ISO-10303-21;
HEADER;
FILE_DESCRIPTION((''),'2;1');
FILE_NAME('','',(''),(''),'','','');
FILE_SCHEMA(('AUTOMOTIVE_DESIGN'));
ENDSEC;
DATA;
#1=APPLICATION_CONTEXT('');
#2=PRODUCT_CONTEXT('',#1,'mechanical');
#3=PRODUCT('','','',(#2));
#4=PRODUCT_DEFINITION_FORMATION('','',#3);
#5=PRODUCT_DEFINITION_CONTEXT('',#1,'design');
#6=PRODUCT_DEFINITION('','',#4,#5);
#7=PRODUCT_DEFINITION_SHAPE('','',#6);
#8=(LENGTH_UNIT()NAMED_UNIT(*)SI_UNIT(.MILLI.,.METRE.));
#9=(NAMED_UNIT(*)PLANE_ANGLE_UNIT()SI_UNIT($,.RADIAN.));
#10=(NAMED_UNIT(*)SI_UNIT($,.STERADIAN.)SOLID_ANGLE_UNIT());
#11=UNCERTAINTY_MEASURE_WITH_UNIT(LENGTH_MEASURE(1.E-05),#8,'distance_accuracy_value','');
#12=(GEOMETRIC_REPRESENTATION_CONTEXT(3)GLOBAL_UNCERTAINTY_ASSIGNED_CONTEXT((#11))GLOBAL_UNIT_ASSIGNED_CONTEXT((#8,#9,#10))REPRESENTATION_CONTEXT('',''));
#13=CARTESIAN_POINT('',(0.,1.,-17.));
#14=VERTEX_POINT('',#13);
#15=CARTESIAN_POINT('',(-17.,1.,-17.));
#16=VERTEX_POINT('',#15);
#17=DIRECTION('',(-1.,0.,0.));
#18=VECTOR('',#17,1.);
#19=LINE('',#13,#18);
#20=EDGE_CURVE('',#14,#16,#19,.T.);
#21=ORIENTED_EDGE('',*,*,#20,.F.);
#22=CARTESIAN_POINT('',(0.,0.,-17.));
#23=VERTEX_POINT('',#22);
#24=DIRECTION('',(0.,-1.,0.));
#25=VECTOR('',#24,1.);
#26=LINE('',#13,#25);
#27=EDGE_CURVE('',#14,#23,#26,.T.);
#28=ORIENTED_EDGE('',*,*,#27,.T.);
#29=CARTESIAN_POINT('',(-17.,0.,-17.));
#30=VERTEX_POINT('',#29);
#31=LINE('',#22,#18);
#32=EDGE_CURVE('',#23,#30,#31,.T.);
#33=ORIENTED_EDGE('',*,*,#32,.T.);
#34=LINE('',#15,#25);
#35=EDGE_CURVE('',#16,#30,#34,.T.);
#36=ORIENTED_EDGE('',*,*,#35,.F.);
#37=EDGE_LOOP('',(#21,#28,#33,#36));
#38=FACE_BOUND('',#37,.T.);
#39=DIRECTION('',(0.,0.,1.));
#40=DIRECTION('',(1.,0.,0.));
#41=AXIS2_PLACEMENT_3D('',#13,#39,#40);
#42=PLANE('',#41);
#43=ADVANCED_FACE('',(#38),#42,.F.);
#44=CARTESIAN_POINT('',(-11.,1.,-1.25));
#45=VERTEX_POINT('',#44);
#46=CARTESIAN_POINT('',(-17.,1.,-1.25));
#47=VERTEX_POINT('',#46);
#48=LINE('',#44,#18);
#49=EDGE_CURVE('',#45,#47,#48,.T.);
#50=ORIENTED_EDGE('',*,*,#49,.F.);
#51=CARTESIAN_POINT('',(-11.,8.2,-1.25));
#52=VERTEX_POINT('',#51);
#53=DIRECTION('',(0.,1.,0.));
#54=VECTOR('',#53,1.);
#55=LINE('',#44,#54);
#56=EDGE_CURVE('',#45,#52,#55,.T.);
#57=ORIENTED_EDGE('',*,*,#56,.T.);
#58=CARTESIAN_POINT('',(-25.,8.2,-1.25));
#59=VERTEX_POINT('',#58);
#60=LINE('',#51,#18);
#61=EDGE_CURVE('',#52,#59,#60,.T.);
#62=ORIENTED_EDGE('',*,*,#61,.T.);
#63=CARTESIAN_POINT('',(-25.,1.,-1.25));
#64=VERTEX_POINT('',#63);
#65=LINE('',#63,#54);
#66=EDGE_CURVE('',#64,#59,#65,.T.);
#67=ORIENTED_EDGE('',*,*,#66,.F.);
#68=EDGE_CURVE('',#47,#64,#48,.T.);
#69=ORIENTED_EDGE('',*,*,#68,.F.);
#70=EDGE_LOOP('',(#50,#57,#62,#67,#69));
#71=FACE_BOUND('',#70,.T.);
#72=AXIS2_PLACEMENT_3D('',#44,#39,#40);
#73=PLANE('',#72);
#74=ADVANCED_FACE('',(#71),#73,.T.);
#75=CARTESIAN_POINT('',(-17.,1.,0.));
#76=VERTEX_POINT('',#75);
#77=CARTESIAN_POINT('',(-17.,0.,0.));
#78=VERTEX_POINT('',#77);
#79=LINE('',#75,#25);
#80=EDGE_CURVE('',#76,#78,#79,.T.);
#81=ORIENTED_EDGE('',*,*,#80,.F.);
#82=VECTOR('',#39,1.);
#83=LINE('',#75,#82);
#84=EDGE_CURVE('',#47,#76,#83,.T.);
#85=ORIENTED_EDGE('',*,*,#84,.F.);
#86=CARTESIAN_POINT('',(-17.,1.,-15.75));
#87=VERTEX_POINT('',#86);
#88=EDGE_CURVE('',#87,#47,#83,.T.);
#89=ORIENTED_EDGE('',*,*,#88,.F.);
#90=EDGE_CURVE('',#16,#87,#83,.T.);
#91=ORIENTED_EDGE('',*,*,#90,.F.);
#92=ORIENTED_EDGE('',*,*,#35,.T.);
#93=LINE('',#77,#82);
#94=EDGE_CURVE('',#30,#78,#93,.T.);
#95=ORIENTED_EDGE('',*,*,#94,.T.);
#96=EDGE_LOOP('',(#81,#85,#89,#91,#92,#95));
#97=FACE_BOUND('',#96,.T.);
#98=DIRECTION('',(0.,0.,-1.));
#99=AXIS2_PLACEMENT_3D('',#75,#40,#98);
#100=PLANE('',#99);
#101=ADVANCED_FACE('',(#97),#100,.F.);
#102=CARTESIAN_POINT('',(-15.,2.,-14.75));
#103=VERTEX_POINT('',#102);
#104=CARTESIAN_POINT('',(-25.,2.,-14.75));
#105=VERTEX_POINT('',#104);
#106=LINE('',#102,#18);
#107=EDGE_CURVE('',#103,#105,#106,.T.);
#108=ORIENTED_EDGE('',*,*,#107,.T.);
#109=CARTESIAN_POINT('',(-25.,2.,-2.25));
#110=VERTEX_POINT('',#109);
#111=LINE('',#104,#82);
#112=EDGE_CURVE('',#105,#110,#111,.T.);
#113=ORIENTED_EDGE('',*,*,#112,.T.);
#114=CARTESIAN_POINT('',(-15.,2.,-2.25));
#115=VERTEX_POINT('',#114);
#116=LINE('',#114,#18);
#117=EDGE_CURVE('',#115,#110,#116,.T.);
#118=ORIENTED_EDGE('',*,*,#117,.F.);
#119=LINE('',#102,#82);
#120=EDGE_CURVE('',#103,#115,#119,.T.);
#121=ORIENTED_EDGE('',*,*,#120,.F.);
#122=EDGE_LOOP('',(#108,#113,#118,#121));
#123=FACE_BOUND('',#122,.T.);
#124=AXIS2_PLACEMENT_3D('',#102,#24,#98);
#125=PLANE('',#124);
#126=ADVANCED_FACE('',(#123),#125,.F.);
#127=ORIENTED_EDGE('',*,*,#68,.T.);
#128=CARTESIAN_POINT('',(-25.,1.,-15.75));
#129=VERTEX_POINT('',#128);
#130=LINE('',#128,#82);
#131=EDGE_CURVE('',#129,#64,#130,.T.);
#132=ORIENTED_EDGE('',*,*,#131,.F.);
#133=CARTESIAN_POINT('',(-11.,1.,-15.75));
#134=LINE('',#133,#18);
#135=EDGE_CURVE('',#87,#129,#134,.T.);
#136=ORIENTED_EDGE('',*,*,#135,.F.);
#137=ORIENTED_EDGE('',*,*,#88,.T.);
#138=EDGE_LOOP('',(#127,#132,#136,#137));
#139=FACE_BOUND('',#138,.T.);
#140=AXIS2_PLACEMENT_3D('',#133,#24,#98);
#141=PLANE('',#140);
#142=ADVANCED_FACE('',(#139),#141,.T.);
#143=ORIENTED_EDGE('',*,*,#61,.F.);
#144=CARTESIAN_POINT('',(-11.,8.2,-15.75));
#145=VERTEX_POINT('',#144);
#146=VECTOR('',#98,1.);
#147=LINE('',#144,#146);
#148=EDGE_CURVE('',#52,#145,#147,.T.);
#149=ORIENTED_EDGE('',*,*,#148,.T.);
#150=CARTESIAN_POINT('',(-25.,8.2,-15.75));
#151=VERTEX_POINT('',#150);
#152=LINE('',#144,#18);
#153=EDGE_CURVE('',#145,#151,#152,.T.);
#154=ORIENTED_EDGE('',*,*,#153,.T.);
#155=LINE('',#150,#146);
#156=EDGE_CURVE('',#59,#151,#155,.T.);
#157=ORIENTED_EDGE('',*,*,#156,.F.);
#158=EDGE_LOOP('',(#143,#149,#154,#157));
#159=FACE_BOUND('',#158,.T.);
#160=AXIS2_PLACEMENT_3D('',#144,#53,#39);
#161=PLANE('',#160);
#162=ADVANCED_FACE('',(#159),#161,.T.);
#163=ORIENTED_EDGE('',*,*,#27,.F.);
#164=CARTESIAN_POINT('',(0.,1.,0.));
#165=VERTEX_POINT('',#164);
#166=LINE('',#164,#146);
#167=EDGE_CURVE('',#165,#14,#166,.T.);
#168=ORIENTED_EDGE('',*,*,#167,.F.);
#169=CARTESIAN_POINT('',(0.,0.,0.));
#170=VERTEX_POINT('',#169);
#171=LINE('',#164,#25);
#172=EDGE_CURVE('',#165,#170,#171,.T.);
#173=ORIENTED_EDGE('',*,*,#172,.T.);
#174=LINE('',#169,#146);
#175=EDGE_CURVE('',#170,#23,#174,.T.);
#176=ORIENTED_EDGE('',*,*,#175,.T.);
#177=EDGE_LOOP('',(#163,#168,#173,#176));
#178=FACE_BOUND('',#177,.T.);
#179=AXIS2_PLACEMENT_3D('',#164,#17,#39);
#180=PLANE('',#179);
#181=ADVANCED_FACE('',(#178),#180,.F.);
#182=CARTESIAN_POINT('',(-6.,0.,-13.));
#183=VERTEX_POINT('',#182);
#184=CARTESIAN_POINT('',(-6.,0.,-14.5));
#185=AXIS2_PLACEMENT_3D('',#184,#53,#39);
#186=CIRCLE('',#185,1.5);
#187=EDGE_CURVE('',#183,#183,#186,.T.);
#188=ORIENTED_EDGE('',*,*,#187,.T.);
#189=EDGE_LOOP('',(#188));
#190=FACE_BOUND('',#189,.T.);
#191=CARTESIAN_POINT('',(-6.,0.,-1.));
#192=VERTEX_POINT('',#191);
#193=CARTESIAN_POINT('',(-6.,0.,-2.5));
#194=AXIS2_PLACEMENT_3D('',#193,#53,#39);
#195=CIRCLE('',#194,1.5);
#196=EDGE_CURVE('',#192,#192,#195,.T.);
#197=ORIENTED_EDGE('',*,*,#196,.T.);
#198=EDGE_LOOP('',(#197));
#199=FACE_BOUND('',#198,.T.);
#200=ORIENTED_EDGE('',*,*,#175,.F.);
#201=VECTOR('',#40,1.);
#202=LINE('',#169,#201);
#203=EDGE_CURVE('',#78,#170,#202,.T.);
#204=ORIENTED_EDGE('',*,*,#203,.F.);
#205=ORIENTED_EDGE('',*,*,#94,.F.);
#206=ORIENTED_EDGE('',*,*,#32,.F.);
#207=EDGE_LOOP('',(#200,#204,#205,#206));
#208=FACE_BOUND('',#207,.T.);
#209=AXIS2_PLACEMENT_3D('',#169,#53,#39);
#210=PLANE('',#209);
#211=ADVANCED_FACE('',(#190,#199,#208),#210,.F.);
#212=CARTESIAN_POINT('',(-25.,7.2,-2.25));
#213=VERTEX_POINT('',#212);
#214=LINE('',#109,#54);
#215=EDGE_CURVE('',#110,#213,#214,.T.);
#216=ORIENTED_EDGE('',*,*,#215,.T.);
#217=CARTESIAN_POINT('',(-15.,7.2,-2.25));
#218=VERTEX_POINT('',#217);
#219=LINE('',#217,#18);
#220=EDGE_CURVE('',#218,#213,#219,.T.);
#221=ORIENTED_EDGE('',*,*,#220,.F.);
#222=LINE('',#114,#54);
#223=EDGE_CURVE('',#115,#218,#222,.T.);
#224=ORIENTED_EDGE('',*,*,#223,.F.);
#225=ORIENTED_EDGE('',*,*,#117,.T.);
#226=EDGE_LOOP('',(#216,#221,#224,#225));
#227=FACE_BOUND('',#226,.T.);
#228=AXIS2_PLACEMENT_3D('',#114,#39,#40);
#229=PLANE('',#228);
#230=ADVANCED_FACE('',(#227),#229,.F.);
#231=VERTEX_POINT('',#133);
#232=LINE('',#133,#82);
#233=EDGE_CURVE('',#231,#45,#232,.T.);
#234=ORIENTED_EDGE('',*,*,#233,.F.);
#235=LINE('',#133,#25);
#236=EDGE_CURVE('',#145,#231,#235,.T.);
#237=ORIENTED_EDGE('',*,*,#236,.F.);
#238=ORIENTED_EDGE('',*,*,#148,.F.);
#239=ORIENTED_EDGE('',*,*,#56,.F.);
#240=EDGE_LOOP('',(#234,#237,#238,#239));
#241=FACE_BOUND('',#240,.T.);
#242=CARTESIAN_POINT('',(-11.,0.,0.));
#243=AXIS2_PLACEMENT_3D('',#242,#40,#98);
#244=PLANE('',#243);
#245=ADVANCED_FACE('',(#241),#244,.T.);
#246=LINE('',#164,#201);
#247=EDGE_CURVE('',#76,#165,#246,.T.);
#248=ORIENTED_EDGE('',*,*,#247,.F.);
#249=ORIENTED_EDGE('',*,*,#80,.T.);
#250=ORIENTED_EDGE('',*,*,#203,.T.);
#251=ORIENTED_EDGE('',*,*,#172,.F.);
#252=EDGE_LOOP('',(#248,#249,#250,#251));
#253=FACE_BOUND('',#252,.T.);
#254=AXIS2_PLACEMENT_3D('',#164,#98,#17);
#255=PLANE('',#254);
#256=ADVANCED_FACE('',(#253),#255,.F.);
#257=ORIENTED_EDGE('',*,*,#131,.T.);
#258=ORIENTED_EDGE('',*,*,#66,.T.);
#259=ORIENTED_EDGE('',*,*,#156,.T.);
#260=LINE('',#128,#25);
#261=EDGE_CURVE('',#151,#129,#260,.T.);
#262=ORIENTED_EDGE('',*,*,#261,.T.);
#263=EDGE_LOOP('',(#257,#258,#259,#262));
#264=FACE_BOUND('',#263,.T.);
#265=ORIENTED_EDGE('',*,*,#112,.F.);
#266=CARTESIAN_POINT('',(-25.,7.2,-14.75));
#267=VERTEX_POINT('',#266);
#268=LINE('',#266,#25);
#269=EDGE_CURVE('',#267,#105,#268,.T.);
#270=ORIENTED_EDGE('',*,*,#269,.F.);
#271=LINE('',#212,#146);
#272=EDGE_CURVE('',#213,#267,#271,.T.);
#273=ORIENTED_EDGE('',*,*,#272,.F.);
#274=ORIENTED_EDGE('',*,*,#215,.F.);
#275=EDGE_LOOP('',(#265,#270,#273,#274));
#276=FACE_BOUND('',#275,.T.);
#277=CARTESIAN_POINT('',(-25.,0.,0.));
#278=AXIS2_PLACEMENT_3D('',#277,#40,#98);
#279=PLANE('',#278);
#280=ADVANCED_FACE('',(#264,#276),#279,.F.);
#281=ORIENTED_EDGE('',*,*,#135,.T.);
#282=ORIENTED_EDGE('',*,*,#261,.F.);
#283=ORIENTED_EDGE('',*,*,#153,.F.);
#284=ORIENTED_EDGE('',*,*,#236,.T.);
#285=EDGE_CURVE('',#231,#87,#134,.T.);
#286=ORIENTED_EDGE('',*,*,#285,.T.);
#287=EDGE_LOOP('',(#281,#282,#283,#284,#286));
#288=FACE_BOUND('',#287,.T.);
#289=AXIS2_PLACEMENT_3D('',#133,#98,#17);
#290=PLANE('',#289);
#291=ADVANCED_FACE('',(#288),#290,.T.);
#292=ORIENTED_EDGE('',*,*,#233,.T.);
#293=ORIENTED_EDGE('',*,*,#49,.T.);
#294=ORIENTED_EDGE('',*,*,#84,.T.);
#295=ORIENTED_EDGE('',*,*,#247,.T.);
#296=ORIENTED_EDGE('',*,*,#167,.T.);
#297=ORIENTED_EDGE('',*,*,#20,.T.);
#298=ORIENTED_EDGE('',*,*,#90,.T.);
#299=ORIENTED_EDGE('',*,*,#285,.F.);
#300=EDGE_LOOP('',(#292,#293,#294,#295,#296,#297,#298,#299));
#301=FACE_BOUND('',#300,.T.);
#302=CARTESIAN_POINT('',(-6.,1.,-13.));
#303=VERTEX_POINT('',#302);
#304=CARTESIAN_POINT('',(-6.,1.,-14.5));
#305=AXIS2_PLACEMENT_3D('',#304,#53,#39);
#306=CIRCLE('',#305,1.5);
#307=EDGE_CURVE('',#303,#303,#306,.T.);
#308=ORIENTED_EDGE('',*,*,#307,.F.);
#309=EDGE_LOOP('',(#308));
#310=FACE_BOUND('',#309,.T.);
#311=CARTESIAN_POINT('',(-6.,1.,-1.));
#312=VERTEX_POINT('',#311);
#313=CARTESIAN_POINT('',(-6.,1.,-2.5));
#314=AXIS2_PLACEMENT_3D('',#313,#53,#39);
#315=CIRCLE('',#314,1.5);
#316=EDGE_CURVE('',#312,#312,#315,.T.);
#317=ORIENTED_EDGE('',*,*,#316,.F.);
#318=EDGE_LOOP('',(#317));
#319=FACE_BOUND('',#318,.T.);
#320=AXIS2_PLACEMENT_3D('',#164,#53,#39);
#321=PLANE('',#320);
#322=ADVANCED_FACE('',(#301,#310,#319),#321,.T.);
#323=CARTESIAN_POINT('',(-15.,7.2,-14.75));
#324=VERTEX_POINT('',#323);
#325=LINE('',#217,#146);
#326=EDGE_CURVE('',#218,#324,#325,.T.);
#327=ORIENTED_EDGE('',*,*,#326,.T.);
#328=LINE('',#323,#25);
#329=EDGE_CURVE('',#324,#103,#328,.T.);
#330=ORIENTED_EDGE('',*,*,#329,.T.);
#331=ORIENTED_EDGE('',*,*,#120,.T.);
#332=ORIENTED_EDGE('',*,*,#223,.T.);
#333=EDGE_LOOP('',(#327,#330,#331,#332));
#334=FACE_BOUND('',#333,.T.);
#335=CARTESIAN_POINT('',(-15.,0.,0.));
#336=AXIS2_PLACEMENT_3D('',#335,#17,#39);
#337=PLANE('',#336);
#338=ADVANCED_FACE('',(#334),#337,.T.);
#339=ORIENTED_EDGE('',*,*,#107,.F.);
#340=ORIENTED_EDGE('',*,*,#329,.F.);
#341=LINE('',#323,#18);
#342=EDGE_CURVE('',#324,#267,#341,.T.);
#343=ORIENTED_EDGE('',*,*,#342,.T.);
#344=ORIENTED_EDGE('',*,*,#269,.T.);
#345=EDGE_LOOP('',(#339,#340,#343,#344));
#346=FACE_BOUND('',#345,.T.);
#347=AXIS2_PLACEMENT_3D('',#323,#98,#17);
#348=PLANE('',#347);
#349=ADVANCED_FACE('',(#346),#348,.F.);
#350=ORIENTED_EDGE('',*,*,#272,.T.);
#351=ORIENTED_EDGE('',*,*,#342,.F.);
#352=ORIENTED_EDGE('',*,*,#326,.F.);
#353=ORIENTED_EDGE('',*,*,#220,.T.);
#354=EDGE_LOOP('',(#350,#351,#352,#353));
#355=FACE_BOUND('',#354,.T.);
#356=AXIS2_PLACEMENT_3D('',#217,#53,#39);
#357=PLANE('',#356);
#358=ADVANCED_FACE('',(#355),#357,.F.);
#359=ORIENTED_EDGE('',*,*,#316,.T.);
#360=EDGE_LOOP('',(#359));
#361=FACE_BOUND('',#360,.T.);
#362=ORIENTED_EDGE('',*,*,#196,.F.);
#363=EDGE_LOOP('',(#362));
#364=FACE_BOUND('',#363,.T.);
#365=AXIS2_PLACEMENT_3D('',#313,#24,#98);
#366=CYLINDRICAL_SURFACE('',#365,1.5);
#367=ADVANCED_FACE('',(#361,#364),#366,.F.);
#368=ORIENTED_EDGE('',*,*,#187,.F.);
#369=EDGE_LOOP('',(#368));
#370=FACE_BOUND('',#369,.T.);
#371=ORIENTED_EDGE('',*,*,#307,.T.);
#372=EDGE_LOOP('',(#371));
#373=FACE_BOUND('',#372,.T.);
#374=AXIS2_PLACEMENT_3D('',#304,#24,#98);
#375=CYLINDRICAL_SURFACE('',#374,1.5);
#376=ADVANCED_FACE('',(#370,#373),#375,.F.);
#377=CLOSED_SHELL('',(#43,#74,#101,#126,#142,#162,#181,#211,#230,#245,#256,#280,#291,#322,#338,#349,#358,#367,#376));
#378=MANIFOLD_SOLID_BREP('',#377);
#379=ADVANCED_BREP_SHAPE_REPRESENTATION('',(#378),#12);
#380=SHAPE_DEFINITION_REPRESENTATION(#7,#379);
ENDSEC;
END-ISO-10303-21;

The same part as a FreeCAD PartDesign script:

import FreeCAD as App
import Part
import Sketcher
Q = App.Units.Quantity

doc = App.newDocument("Part")
body = doc.addObject("PartDesign::Body", "Body")

# Sketch on XZ plane
sketch1 = body.newObject("Sketcher::SketchObject", "Sketch")
sketch1.AttachmentSupport = (doc.getObject("XZ_Plane"), [""])
sketch1.MapMode = "FlatFace"
sketch1.addGeometry([
    Part.LineSegment(App.Vector(-17, -17, 0), App.Vector(-17, 0, 0)),  # 0
    Part.LineSegment(App.Vector(-17, 0, 0), App.Vector(0, 0, 0)),  # 1
    Part.LineSegment(App.Vector(0, 0, 0), App.Vector(0, -17, 0)),  # 2
    Part.LineSegment(App.Vector(0, -17, 0), App.Vector(-17, -17, 0)),  # 3
    Part.Circle(App.Vector(-6, -2.5, 0), App.Vector(0, 0, 1), 1.5),  # 4
    Part.Circle(App.Vector(-6, -14.5, 0), App.Vector(0, 0, 1), 1.5),  # 5
], False)
sketch1.addConstraint([
    Sketcher.Constraint("Coincident", 0, 2, 1, 1),
    Sketcher.Constraint("Coincident", 1, 2, 2, 1),
    Sketcher.Constraint("Coincident", 2, 2, 3, 1),
    Sketcher.Constraint("Coincident", 3, 2, 0, 1),
    Sketcher.Constraint("Vertical", 0),
    Sketcher.Constraint("Horizontal", 1),
    Sketcher.Constraint("Vertical", 2),
    Sketcher.Constraint("Horizontal", 3),
    Sketcher.Constraint("Coincident", 1, 2, -1, 1),
    Sketcher.Constraint("Equal", 4, 5),
    Sketcher.Constraint("Vertical", 4, 3, 5, 3),
    Sketcher.Constraint("Equal", 3, 0),
    Sketcher.Constraint("Diameter", 4, Q("3 mm")),
    Sketcher.Constraint("DistanceX", 1, 1, 1, 2, Q("17 mm")),
    Sketcher.Constraint("DistanceX", 4, 3, -1, 1, Q("6 mm")),
    Sketcher.Constraint("DistanceY", 5, 3, 4, 3, Q("12 mm")),
    Sketcher.Constraint("DistanceY", 4, 3, -1, 1, Q("2.5 mm")),
])
pad1 = body.newObject("PartDesign::Pad", "Pad")
pad1.Profile = sketch1
pad1.Length = 1
pad1.Reversed = True

# Sketch on YZ plane
sketch2 = body.newObject("Sketcher::SketchObject", "Sketch001")
sketch2.AttachmentSupport = (doc.getObject("YZ_Plane"), [""])
sketch2.MapMode = "FlatFace"
sketch2.AttachmentOffset = App.Placement(App.Vector(0, 0, -25), App.Rotation())
sketch2.addGeometry([
    Part.LineSegment(App.Vector(8, -16, 0), App.Vector(1, -16, 0)),
    Part.LineSegment(App.Vector(1, -16, 0), App.Vector(1, -1, 0)),
    Part.LineSegment(App.Vector(1, -1, 0), App.Vector(8, -1, 0)),
    Part.LineSegment(App.Vector(8, -1, 0), App.Vector(8, -16, 0)),
], False)
sketch2.addConstraint([
    Sketcher.Constraint("Coincident", 0, 2, 1, 1),
    Sketcher.Constraint("Coincident", 1, 2, 2, 1),
    Sketcher.Constraint("Coincident", 2, 2, 3, 1),
    Sketcher.Constraint("Coincident", 3, 2, 0, 1),
    Sketcher.Constraint("Horizontal", 0),
    Sketcher.Constraint("Vertical", 1),
    Sketcher.Constraint("Horizontal", 2),
    Sketcher.Constraint("Vertical", 3),
    Sketcher.Constraint("DistanceX", 0, 2, 0, 1, Q("7.2 mm")),
    Sketcher.Constraint("DistanceY", 1, 1, 1, 2, Q("14.5 mm")),
    Sketcher.Constraint("DistanceX", -1, 1, 0, 2, Q("1 mm")),
    Sketcher.Constraint("DistanceY", 0, 2, -1, 1, Q("15.75 mm")),
])
pad2 = body.newObject("PartDesign::Pad", "Pad001")
pad2.Profile = sketch2
pad2.Length = 14

# Sketch on YZ plane
sketch3 = body.newObject("Sketcher::SketchObject", "Sketch002")
sketch3.AttachmentSupport = (doc.getObject("YZ_Plane"), [""])
sketch3.MapMode = "FlatFace"
sketch3.AttachmentOffset = App.Placement(App.Vector(0, 0, -25), App.Rotation())
sketch3.addGeometry([
    Part.LineSegment(App.Vector(7, -15, 0), App.Vector(2, -15, 0)),
    Part.LineSegment(App.Vector(2, -15, 0), App.Vector(2, -2, 0)),
    Part.LineSegment(App.Vector(2, -2, 0), App.Vector(7, -2, 0)),
    Part.LineSegment(App.Vector(7, -2, 0), App.Vector(7, -15, 0)),
], False)
sketch3.addConstraint([
    Sketcher.Constraint("Coincident", 0, 2, 1, 1),
    Sketcher.Constraint("Coincident", 1, 2, 2, 1),
    Sketcher.Constraint("Coincident", 2, 2, 3, 1),
    Sketcher.Constraint("Coincident", 3, 2, 0, 1),
    Sketcher.Constraint("Horizontal", 0),
    Sketcher.Constraint("Vertical", 1),
    Sketcher.Constraint("Horizontal", 2),
    Sketcher.Constraint("Vertical", 3),
    Sketcher.Constraint("DistanceX", 0, 2, 0, 1, Q("5.2 mm")),
    Sketcher.Constraint("DistanceY", 1, 1, 1, 2, Q("12.5 mm")),
    Sketcher.Constraint("DistanceX", -1, 1, 0, 2, Q("2 mm")),
    Sketcher.Constraint("DistanceY", 0, 2, -1, 1, Q("14.75 mm")),
])
pocket1 = body.newObject("PartDesign::Pocket", "Pocket")
pocket1.Profile = sketch3
pocket1.Length = 10
pocket1.Reversed = True

doc.recompute()
